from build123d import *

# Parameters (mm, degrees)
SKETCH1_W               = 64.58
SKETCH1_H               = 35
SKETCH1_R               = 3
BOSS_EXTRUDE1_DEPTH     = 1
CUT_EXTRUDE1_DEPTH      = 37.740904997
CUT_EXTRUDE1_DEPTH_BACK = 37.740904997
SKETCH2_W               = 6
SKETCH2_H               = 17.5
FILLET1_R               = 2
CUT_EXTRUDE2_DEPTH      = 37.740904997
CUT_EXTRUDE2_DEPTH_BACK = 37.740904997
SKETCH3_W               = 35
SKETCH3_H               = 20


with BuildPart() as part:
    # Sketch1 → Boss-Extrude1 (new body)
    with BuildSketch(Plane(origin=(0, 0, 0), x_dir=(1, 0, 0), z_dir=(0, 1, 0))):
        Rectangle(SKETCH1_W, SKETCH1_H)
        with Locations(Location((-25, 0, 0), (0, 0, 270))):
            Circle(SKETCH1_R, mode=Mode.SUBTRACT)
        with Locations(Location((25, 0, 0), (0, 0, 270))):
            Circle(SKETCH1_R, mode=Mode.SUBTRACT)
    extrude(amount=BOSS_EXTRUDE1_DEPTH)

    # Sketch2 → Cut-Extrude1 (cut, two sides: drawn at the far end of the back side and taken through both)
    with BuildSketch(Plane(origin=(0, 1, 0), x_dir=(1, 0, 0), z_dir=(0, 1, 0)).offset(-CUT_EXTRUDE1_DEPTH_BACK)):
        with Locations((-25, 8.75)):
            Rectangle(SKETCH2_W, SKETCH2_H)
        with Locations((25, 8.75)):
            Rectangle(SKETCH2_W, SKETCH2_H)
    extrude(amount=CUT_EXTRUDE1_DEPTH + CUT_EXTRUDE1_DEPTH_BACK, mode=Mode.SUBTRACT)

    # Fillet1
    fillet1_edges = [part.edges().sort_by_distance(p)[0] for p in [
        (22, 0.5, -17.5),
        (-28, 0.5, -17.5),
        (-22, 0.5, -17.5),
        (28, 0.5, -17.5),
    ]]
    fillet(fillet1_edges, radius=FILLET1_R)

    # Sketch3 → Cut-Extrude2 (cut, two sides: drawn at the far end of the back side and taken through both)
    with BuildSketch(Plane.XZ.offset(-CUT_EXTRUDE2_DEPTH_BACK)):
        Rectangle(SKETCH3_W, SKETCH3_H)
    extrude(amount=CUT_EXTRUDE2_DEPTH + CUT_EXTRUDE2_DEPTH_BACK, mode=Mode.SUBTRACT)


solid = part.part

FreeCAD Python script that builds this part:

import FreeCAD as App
import Part
import Sketcher
Q = App.Units.Quantity


def edges_at(feature, points):
    """Names of the edges that pass closest to the given points."""
    edges = feature.Shape.Edges
    near = lambda p: min(range(len(edges)), key=lambda i: edges[i].distToShape(Part.Vertex(*p))[0])
    return sorted({f"Edge{near(p) + 1}" for p in points})


def add_polygon(sketch, points):
    """Adds a closed chain of lines whose ends are joined by coincident constraints."""
    first, n = sketch.GeometryCount, len(points)
    for a, b in zip(points, points[1:] + points[:1]):
        sketch.addGeometry(Part.LineSegment(App.Vector(*a, 0), App.Vector(*b, 0)), False)
    for i in range(n):
        sketch.addConstraint(Sketcher.Constraint("Coincident", first + i, 2, first + (i + 1) % n, 1))

doc = App.newDocument("Part")
body = doc.addObject("PartDesign::Body", "Body")

# Sketch on XZ plane
sketch1 = doc.addObject("Sketcher::SketchObject", "Sketch")
body.addObject(sketch1)
sketch1.AttachmentSupport = (doc.XZ_Plane, [""])
sketch1.MapMode = "FlatFace"
add_polygon(sketch1, [(-32.3, -17.5), (-32.3, 17.5), (32.3, 17.5), (32.3, -17.5)])  # lines 0-3
sketch1.addGeometry(Part.Circle(App.Vector(-25, 0, 0), App.Vector(0, 0, 1), 3), False)  # 4
sketch1.addGeometry(Part.Circle(App.Vector(25, 0, 0), App.Vector(0, 0, 1), 3), False)  # 5
sketch1.addConstraint(Sketcher.Constraint("Vertical", 0))
sketch1.addConstraint(Sketcher.Constraint("Horizontal", 1))
sketch1.addConstraint(Sketcher.Constraint("Vertical", 2))
sketch1.addConstraint(Sketcher.Constraint("Horizontal", 3))
sketch1.addConstraint(Sketcher.Constraint("Equal", 4, 5))
sketch1.addConstraint(Sketcher.Constraint("Symmetric", 4, 3, 5, 3, -1, 1))
sketch1.addConstraint(Sketcher.Constraint("Symmetric", 0, 2, 2, 2, -1, 1))
sketch1.addConstraint(Sketcher.Constraint("PointOnObject", 4, 3, -1))
sketch1.addConstraint(Sketcher.Constraint("Diameter", 4, Q("6 mm")))
sketch1.addConstraint(Sketcher.Constraint("DistanceY", 0, 1, 0, 2, Q("35 mm")))
sketch1.addConstraint(Sketcher.Constraint("DistanceX", 4, 3, -1, 1, Q("25 mm")))
sketch1.addConstraint(Sketcher.Constraint("DistanceX", 1, 1, 1, 2, Q("64.58 mm")))
pad1 = doc.addObject("PartDesign::Pad", "Pad")
body.addObject(pad1)
pad1.Profile = sketch1
pad1.Length = 1
pad1.Reversed = True

# Sketch on XZ plane
sketch2 = doc.addObject("Sketcher::SketchObject", "Sketch001")
body.addObject(sketch2)
sketch2.AttachmentSupport = (doc.XZ_Plane, [""])
sketch2.MapMode = "FlatFace"
sketch2.AttachmentOffset = App.Placement(App.Vector(0, 0, -1), App.Rotation())
add_polygon(sketch2, [(-28, -18), (-28, 0), (-22, 0), (-22, -18)])  # lines 0-3
add_polygon(sketch2, [(22, -18), (22, 0), (28, 0), (28, -18)])  # lines 4-7
sketch2.addConstraint(Sketcher.Constraint("Vertical", 0))
sketch2.addConstraint(Sketcher.Constraint("Horizontal", 1))
sketch2.addConstraint(Sketcher.Constraint("Vertical", 2))
sketch2.addConstraint(Sketcher.Constraint("Horizontal", 3))
sketch2.addConstraint(Sketcher.Constraint("Vertical", 4))
sketch2.addConstraint(Sketcher.Constraint("Horizontal", 5))
sketch2.addConstraint(Sketcher.Constraint("Vertical", 6))
sketch2.addConstraint(Sketcher.Constraint("Horizontal", 7))
sketch2.addConstraint(Sketcher.Constraint("Symmetric", 1, 2, 4, 2, -1, 1))
sketch2.addConstraint(Sketcher.Constraint("Symmetric", 0, 2, 5, 2, -2))
sketch2.addConstraint(Sketcher.Constraint("Horizontal", 3, 2, 6, 2))
sketch2.addConstraint(Sketcher.Constraint("DistanceX", 1, 1, 1, 2, Q("6 mm")))
sketch2.addConstraint(Sketcher.Constraint("DistanceY", 0, 1, 0, 2, Q("17.5 mm")))
sketch2.addConstraint(Sketcher.Constraint("DistanceX", 0, 2, -1, 1, Q("28 mm")))
pocket1 = doc.addObject("PartDesign::Pocket", "Pocket")
body.addObject(pocket1)
pocket1.Profile = sketch2
pocket1.Type = "ThroughAll"
pocket1.Midplane = True
doc.recompute()

fillet = doc.addObject("PartDesign::Fillet", "Fillet")
body.addObject(fillet)
fillet.Base = (pocket1, edges_at(pocket1, [
    (22, 0.5, -17.5),
    (-28, 0.5, -17.5),
    (-22, 0.5, -17.5),
    (28, 0.5, -17.5),
]))
fillet.Radius = 2

# Sketch on XZ plane
sketch3 = doc.addObject("Sketcher::SketchObject", "Sketch002")
body.addObject(sketch3)
sketch3.AttachmentSupport = (doc.XZ_Plane, [""])
sketch3.MapMode = "FlatFace"
add_polygon(sketch3, [(-18, 10), (-18, -10), (18, -10), (18, 10)])  # lines 0-3
sketch3.addConstraint(Sketcher.Constraint("Vertical", 0))
sketch3.addConstraint(Sketcher.Constraint("Horizontal", 1))
sketch3.addConstraint(Sketcher.Constraint("Vertical", 2))
sketch3.addConstraint(Sketcher.Constraint("Horizontal", 3))
sketch3.addConstraint(Sketcher.Constraint("Symmetric", 0, 2, 2, 2, -1, 1))
sketch3.addConstraint(Sketcher.Constraint("DistanceX", 1, 1, 1, 2, Q("35 mm")))
sketch3.addConstraint(Sketcher.Constraint("DistanceY", 0, 2, 0, 1, Q("20 mm")))
pocket2 = doc.addObject("PartDesign::Pocket", "Pocket001")
body.addObject(pocket2)
pocket2.Profile = sketch3
pocket2.Type = "ThroughAll"
pocket2.Midplane = True

doc.recompute()
